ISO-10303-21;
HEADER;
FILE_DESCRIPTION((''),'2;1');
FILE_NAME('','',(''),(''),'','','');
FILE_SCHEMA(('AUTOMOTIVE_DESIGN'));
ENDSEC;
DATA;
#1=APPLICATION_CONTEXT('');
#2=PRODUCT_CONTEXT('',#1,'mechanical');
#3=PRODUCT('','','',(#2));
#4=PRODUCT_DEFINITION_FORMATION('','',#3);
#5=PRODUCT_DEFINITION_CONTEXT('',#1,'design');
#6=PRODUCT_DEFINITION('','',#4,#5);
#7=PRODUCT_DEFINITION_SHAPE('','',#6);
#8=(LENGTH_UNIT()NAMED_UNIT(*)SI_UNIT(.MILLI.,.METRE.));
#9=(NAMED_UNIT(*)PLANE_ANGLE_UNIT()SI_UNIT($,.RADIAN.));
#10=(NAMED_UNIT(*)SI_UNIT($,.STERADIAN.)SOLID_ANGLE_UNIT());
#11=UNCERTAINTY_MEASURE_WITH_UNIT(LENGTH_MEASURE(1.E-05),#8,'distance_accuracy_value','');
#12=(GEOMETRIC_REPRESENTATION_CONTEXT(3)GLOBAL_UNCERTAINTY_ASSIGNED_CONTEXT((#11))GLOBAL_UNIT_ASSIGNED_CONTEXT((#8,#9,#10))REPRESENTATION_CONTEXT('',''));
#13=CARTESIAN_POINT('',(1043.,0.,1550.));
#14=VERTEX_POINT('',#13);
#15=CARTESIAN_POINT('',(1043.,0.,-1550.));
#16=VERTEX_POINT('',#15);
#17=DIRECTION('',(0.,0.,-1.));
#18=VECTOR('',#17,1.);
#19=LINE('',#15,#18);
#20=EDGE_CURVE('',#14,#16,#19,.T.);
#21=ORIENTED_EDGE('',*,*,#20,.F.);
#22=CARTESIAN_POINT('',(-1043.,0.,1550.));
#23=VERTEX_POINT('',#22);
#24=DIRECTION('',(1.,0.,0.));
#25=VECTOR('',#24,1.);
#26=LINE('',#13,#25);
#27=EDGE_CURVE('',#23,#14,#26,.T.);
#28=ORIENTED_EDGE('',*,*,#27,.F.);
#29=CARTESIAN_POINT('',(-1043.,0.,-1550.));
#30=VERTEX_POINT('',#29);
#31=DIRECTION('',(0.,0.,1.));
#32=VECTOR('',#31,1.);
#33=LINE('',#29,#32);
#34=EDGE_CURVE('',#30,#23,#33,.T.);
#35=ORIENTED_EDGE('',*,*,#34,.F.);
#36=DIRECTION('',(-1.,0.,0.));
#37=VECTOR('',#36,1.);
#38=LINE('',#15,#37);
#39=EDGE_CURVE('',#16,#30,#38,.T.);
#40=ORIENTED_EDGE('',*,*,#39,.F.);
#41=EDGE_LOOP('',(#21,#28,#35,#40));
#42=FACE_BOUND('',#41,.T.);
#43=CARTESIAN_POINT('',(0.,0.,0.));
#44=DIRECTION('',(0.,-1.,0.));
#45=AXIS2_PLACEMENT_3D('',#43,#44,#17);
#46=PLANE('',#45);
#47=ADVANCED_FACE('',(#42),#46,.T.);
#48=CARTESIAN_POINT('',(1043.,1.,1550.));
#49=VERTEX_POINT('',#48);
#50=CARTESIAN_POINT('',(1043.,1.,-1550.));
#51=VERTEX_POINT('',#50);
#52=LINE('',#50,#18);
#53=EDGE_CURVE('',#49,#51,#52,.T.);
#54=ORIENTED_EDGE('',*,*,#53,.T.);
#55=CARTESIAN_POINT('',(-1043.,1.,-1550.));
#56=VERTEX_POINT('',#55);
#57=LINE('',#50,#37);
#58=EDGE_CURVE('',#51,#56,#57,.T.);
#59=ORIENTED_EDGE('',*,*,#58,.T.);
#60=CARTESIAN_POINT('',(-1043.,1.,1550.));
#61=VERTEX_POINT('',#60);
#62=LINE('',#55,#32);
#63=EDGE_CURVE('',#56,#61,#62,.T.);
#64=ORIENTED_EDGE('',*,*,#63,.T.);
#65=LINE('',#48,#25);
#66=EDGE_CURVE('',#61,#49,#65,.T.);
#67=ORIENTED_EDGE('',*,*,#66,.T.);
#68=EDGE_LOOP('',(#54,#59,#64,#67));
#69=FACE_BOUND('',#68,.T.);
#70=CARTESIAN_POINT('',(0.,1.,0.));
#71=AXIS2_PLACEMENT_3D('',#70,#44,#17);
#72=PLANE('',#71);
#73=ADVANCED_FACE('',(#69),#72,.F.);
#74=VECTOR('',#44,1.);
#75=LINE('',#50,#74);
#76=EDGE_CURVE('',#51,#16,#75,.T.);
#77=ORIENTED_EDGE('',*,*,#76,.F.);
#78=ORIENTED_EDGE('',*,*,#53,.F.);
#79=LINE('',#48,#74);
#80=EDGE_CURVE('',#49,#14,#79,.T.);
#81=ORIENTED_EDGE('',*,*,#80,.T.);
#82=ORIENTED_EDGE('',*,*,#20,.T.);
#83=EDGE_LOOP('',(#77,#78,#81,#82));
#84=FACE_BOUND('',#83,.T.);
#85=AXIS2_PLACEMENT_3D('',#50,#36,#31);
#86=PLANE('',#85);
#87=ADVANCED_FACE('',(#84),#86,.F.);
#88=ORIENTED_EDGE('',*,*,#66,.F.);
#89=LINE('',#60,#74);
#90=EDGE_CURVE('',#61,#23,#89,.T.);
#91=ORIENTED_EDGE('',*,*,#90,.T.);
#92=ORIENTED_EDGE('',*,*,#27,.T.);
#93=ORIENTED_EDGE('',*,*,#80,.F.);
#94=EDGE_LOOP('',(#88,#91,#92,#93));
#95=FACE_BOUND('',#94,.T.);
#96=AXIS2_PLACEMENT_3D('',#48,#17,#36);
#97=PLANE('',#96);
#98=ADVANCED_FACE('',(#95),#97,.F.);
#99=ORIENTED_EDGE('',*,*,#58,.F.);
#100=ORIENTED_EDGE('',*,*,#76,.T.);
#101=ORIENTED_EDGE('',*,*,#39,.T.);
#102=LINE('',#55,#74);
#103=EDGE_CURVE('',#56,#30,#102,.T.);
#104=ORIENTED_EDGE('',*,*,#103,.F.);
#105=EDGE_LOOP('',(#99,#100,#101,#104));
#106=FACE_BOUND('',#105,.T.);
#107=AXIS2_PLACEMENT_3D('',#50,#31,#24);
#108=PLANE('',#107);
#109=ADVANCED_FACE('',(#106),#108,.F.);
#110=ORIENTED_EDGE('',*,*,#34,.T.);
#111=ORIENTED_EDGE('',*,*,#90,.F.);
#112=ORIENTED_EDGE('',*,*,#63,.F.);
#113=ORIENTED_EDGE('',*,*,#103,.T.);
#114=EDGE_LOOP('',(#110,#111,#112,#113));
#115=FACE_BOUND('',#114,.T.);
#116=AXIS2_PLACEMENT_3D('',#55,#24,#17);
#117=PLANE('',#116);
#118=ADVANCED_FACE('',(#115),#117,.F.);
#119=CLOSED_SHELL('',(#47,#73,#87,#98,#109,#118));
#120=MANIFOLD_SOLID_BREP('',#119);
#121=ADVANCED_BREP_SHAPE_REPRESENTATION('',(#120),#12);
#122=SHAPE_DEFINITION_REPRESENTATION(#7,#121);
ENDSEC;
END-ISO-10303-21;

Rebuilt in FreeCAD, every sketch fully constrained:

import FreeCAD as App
import Part
import Sketcher
from FreeCAD import Vector

doc = App.newDocument("Part")
body = doc.addObject("PartDesign::Body", "Body")

# Sketch on XZ plane
sketch1 = body.newObject("Sketcher::SketchObject", "Sketch")
sketch1.AttachmentSupport = (doc.getObject("XZ_Plane"), [""])
sketch1.MapMode = "FlatFace"
sketch1.addGeometry(Part.LineSegment(Vector(-1043, -1550, 0), Vector(-1043, 1550, 0)), False)
sketch1.addGeometry(Part.LineSegment(Vector(-1043, 1550, 0), Vector(1043, 1550, 0)), False)
sketch1.addGeometry(Part.LineSegment(Vector(1043, 1550, 0), Vector(1043, -1550, 0)), False)
sketch1.addGeometry(Part.LineSegment(Vector(1043, -1550, 0), Vector(-1043, -1550, 0)), False)
sketch1.addConstraint(Sketcher.Constraint("Coincident", 0, 2, 1, 1))
sketch1.addConstraint(Sketcher.Constraint("Coincident", 1, 2, 2, 1))
sketch1.addConstraint(Sketcher.Constraint("Coincident", 2, 2, 3, 1))
sketch1.addConstraint(Sketcher.Constraint("Coincident", 3, 2, 0, 1))
sketch1.addConstraint(Sketcher.Constraint("Vertical", 0))
sketch1.addConstraint(Sketcher.Constraint("Horizontal", 1))
sketch1.addConstraint(Sketcher.Constraint("Vertical", 2))
sketch1.addConstraint(Sketcher.Constraint("Horizontal", 3))
sketch1.addConstraint(Sketcher.Constraint("Symmetric", 0, 2, 2, 2, -1, 1))
sketch1.addConstraint(Sketcher.Constraint("DistanceX", 1, 1, 1, 2, 2086.0))
sketch1.addConstraint(Sketcher.Constraint("DistanceY", 0, 1, 0, 2, 3100.0))
pad1 = body.newObject("PartDesign::Pad", "Pad")
pad1.Profile = sketch1
pad1.Length = 1
pad1.Reversed = True

doc.recompute()
